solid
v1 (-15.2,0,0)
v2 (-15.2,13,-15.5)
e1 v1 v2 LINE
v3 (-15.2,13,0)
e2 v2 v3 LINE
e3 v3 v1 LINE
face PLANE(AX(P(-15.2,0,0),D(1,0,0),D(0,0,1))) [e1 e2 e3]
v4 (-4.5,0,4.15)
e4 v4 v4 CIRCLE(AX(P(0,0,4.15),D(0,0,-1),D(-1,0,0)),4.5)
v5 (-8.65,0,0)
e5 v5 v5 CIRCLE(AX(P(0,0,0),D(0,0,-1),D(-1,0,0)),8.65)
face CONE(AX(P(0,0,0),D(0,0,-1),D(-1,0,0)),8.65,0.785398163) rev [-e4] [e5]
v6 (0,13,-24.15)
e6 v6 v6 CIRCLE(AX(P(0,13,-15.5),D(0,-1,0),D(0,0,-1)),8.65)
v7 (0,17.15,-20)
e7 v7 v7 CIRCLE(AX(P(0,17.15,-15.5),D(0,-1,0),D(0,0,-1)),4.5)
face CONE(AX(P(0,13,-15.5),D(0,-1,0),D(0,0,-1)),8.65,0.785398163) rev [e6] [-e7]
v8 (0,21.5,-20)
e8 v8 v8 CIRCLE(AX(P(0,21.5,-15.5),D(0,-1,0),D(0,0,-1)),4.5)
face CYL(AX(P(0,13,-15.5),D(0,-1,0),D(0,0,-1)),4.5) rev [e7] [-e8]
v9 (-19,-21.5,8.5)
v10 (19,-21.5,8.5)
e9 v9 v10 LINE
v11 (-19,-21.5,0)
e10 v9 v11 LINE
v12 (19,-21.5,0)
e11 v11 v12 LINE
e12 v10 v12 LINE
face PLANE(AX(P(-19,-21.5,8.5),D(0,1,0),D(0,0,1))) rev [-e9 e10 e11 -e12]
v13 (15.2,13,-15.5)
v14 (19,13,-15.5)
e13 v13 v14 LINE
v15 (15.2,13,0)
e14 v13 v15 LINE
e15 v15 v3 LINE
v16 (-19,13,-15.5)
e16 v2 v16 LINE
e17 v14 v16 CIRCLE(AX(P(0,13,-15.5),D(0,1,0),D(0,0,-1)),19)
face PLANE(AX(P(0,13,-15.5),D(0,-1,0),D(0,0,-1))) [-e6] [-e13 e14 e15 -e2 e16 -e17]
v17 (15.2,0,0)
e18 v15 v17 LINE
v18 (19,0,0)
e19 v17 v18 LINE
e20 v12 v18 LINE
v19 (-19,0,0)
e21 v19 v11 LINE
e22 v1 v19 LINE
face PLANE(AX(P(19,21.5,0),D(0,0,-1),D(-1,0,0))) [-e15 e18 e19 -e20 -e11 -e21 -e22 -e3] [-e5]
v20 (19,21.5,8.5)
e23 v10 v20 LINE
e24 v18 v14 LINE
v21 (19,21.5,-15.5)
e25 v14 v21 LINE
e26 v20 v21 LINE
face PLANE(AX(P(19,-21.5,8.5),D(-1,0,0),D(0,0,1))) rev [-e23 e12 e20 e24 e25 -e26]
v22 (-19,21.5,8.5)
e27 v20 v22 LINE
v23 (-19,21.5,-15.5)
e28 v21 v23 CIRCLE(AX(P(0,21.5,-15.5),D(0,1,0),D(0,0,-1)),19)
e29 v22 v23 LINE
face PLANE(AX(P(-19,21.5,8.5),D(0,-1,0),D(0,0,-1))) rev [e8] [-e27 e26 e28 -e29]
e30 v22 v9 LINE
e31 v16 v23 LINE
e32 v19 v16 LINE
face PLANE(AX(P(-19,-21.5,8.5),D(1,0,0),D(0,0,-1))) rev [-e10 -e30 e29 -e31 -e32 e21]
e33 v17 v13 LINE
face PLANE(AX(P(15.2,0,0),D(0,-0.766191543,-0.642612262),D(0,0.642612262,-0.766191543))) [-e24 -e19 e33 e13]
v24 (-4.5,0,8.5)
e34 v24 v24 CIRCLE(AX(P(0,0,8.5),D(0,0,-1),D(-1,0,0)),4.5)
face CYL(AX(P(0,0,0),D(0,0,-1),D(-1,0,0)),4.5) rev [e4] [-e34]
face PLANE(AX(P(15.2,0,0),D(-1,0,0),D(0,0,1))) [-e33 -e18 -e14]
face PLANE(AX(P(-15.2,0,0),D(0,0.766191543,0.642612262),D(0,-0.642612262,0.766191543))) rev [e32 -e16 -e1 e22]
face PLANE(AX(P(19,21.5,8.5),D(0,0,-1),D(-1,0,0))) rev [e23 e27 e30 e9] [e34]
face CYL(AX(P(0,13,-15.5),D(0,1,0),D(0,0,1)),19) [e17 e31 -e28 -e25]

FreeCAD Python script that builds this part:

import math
import FreeCAD as App
import Part
import Sketcher
from FreeCAD import Vector
Q = App.Units.Quantity


def add_polygon(sketch, points):
    """Adds a closed chain of lines whose ends are joined by coincident constraints."""
    first, n = sketch.GeometryCount, len(points)
    for a, b in zip(points, points[1:] + points[:1]):
        sketch.addGeometry(Part.LineSegment(App.Vector(*a, 0), App.Vector(*b, 0)), False)
    for i in range(n):
        sketch.addConstraint(Sketcher.Constraint("Coincident", first + i, 2, first + (i + 1) % n, 1))

doc = App.newDocument("Part")
body = doc.addObject("PartDesign::Body", "Body")

sketch1 = body.newObject("Sketcher::SketchObject", "Sketch")
sketch1.AttachmentSupport = (doc.getObject("XY_Plane"), [""])
sketch1.MapMode = "FlatFace"
add_polygon(sketch1, [(-19, 21.5), (-19, -21.5), (19, -21.5), (19, 21.5)])
sketch1.addConstraint([
    Sketcher.Constraint("Vertical", 0),
    Sketcher.Constraint("Horizontal", 1),
    Sketcher.Constraint("Vertical", 2),
    Sketcher.Constraint("Horizontal", 3),
    Sketcher.Constraint("Symmetric", 0, 2, 2, 2, -1, 1),
    Sketcher.Constraint("DistanceX", 1, 1, 1, 2, 38.0),
    Sketcher.Constraint("DistanceY", 0, 2, 0, 1, 43.0),
])
pad1 = body.newObject("PartDesign::Pad", "Pad")
pad1.Profile = sketch1
pad1.Length = 8.5

sketch2 = body.newObject("Sketcher::SketchObject", "Sketch001")
sketch2.AttachmentSupport = (doc.getObject("XZ_Plane"), [""])
sketch2.MapMode = "FlatFace"
sketch2.AttachmentOffset = App.Placement(Vector(0, 0, -21.5), App.Rotation())
sketch2.addGeometry([
    Part.LineSegment(Vector(-19, 8.5, 0), Vector(19, 8.5, 0)),
    Part.LineSegment(Vector(19, 8.5, 0), Vector(19, -15.5, 0)),
    Part.ArcOfCircle(Part.Circle(Vector(0, -15.5, 0), Vector(0, 0, 1), 19), math.radians(180), math.radians(360)),
    Part.LineSegment(Vector(-19, -15.5, 0), Vector(-19, 8.5, 0)),
], False)
sketch2.addConstraint([
    Sketcher.Constraint("Coincident", 0, 2, 1, 1),
    Sketcher.Constraint("Tangent", 1, 2, 2, 2),
    Sketcher.Constraint("Tangent", 2, 1, 3, 1),
    Sketcher.Constraint("Coincident", 3, 2, 0, 1),
    Sketcher.Constraint("Horizontal", 0),
    Sketcher.Constraint("Vertical", 1),
    Sketcher.Constraint("Vertical", 3),
    Sketcher.Constraint("PointOnObject", 2, 3, -2),
    Sketcher.Constraint("Radius", 2, 19.0),
    Sketcher.Constraint("DistanceY", 1, 2, 1, 1, 24.0),
    Sketcher.Constraint("DistanceY", 2, 3, -1, 1, 15.5),
])
pad2 = body.newObject("PartDesign::Pad", "Pad001")
pad2.Profile = sketch2
pad2.Length = 8.5

sketch3 = body.newObject("Sketcher::SketchObject", "Sketch002")
sketch3.AttachmentSupport = (doc.getObject("YZ_Plane"), [""])
sketch3.MapMode = "FlatFace"
sketch3.AttachmentOffset = App.Placement(Vector(0, 0, 19), App.Rotation())
add_polygon(sketch3, [(13, -15.5), (13, 0), (0, 0)])
sketch3.addConstraint([
    Sketcher.Constraint("Vertical", 0),
    Sketcher.Constraint("Horizontal", 1),
    Sketcher.Constraint("Coincident", 1, 2, -1, 1),
    Sketcher.Constraint("DistanceX", 1, 2, 1, 1, 13.0),
    Sketcher.Constraint("DistanceY", 0, 1, 0, 2, 15.5),
])
pad3 = body.newObject("PartDesign::Pad", "Pad002")
pad3.Profile = sketch3
pad3.Length = 3.8
pad3.Reversed = True
doc.recompute()

mirrored = body.newObject("PartDesign::Mirrored", "Mirrored")
mirrored.Originals = [pad3]
mirrored.MirrorPlane = (doc.getObject("YZ_Plane"), [""])
body.Tip = mirrored

sketch4 = body.newObject("Sketcher::SketchObject", "Sketch003")
sketch4.AttachmentSupport = (doc.getObject("YZ_Plane"), [""])
sketch4.MapMode = "FlatFace"
add_polygon(sketch4, [(0, 8.5), (0, 0), (8.65, 0), (4.5, 4.15), (4.5, 8.5)])
sketch4.addConstraint([
    Sketcher.Constraint("Vertical", 0),
    Sketcher.Constraint("Horizontal", 1),
    Sketcher.Constraint("Vertical", 3),
    Sketcher.Constraint("Horizontal", 4),
    Sketcher.Constraint("Coincident", 0, 2, -1, 1),
    Sketcher.Constraint("Angle", 2, Q("135 deg")),
    Sketcher.Constraint("DistanceX", 4, 2, 4, 1, 4.5),
    Sketcher.Constraint("DistanceY", 0, 2, 0, 1, 8.5),
    Sketcher.Constraint("DistanceX", 1, 1, 1, 2, 8.65),
])
groove = body.newObject("PartDesign::Groove", "Groove")
groove.Profile = sketch4
groove.ReferenceAxis = (sketch4, ["V_Axis"])
groove.Angle = 360

sketch5 = body.newObject("Sketcher::SketchObject", "Sketch004")
sketch5.AttachmentSupport = (doc.getObject("YZ_Plane"), [""])
sketch5.MapMode = "FlatFace"
add_polygon(sketch5, [(21.5, -15.5), (13, -15.5), (13, -24.15), (17.15, -20), (21.5, -20)])
sketch5.addGeometry(Part.LineSegment(Vector(13, -15.5, 0), Vector(21.5, -15.5, 0)), True)
sketch5.addConstraint([
    Sketcher.Constraint("Horizontal", 0),
    Sketcher.Constraint("Vertical", 1),
    Sketcher.Constraint("Horizontal", 3),
    Sketcher.Constraint("Vertical", 4),
    Sketcher.Constraint("Horizontal", 5),
    Sketcher.Constraint("Coincident", 5, 1, 0, 2),
    Sketcher.Constraint("Vertical", 3, 2, 5, 2),
    Sketcher.Constraint("Angle", 2, Q("45 deg")),
    Sketcher.Constraint("DistanceX", 0, 2, 0, 1, 8.5),
    Sketcher.Constraint("DistanceY", 4, 1, 4, 2, 4.5),
    Sketcher.Constraint("DistanceX", -1, 1, 0, 2, 13.0),
    Sketcher.Constraint("DistanceY", 2, 2, -1, 1, 20.0),
    Sketcher.Constraint("DistanceX", 3, 1, 3, 2, 4.35),
])
groove2 = body.newObject("PartDesign::Groove", "Groove001")
groove2.Profile = sketch5
groove2.ReferenceAxis = (sketch5, ["Axis0"])
groove2.Angle = 360

doc.recompute()
